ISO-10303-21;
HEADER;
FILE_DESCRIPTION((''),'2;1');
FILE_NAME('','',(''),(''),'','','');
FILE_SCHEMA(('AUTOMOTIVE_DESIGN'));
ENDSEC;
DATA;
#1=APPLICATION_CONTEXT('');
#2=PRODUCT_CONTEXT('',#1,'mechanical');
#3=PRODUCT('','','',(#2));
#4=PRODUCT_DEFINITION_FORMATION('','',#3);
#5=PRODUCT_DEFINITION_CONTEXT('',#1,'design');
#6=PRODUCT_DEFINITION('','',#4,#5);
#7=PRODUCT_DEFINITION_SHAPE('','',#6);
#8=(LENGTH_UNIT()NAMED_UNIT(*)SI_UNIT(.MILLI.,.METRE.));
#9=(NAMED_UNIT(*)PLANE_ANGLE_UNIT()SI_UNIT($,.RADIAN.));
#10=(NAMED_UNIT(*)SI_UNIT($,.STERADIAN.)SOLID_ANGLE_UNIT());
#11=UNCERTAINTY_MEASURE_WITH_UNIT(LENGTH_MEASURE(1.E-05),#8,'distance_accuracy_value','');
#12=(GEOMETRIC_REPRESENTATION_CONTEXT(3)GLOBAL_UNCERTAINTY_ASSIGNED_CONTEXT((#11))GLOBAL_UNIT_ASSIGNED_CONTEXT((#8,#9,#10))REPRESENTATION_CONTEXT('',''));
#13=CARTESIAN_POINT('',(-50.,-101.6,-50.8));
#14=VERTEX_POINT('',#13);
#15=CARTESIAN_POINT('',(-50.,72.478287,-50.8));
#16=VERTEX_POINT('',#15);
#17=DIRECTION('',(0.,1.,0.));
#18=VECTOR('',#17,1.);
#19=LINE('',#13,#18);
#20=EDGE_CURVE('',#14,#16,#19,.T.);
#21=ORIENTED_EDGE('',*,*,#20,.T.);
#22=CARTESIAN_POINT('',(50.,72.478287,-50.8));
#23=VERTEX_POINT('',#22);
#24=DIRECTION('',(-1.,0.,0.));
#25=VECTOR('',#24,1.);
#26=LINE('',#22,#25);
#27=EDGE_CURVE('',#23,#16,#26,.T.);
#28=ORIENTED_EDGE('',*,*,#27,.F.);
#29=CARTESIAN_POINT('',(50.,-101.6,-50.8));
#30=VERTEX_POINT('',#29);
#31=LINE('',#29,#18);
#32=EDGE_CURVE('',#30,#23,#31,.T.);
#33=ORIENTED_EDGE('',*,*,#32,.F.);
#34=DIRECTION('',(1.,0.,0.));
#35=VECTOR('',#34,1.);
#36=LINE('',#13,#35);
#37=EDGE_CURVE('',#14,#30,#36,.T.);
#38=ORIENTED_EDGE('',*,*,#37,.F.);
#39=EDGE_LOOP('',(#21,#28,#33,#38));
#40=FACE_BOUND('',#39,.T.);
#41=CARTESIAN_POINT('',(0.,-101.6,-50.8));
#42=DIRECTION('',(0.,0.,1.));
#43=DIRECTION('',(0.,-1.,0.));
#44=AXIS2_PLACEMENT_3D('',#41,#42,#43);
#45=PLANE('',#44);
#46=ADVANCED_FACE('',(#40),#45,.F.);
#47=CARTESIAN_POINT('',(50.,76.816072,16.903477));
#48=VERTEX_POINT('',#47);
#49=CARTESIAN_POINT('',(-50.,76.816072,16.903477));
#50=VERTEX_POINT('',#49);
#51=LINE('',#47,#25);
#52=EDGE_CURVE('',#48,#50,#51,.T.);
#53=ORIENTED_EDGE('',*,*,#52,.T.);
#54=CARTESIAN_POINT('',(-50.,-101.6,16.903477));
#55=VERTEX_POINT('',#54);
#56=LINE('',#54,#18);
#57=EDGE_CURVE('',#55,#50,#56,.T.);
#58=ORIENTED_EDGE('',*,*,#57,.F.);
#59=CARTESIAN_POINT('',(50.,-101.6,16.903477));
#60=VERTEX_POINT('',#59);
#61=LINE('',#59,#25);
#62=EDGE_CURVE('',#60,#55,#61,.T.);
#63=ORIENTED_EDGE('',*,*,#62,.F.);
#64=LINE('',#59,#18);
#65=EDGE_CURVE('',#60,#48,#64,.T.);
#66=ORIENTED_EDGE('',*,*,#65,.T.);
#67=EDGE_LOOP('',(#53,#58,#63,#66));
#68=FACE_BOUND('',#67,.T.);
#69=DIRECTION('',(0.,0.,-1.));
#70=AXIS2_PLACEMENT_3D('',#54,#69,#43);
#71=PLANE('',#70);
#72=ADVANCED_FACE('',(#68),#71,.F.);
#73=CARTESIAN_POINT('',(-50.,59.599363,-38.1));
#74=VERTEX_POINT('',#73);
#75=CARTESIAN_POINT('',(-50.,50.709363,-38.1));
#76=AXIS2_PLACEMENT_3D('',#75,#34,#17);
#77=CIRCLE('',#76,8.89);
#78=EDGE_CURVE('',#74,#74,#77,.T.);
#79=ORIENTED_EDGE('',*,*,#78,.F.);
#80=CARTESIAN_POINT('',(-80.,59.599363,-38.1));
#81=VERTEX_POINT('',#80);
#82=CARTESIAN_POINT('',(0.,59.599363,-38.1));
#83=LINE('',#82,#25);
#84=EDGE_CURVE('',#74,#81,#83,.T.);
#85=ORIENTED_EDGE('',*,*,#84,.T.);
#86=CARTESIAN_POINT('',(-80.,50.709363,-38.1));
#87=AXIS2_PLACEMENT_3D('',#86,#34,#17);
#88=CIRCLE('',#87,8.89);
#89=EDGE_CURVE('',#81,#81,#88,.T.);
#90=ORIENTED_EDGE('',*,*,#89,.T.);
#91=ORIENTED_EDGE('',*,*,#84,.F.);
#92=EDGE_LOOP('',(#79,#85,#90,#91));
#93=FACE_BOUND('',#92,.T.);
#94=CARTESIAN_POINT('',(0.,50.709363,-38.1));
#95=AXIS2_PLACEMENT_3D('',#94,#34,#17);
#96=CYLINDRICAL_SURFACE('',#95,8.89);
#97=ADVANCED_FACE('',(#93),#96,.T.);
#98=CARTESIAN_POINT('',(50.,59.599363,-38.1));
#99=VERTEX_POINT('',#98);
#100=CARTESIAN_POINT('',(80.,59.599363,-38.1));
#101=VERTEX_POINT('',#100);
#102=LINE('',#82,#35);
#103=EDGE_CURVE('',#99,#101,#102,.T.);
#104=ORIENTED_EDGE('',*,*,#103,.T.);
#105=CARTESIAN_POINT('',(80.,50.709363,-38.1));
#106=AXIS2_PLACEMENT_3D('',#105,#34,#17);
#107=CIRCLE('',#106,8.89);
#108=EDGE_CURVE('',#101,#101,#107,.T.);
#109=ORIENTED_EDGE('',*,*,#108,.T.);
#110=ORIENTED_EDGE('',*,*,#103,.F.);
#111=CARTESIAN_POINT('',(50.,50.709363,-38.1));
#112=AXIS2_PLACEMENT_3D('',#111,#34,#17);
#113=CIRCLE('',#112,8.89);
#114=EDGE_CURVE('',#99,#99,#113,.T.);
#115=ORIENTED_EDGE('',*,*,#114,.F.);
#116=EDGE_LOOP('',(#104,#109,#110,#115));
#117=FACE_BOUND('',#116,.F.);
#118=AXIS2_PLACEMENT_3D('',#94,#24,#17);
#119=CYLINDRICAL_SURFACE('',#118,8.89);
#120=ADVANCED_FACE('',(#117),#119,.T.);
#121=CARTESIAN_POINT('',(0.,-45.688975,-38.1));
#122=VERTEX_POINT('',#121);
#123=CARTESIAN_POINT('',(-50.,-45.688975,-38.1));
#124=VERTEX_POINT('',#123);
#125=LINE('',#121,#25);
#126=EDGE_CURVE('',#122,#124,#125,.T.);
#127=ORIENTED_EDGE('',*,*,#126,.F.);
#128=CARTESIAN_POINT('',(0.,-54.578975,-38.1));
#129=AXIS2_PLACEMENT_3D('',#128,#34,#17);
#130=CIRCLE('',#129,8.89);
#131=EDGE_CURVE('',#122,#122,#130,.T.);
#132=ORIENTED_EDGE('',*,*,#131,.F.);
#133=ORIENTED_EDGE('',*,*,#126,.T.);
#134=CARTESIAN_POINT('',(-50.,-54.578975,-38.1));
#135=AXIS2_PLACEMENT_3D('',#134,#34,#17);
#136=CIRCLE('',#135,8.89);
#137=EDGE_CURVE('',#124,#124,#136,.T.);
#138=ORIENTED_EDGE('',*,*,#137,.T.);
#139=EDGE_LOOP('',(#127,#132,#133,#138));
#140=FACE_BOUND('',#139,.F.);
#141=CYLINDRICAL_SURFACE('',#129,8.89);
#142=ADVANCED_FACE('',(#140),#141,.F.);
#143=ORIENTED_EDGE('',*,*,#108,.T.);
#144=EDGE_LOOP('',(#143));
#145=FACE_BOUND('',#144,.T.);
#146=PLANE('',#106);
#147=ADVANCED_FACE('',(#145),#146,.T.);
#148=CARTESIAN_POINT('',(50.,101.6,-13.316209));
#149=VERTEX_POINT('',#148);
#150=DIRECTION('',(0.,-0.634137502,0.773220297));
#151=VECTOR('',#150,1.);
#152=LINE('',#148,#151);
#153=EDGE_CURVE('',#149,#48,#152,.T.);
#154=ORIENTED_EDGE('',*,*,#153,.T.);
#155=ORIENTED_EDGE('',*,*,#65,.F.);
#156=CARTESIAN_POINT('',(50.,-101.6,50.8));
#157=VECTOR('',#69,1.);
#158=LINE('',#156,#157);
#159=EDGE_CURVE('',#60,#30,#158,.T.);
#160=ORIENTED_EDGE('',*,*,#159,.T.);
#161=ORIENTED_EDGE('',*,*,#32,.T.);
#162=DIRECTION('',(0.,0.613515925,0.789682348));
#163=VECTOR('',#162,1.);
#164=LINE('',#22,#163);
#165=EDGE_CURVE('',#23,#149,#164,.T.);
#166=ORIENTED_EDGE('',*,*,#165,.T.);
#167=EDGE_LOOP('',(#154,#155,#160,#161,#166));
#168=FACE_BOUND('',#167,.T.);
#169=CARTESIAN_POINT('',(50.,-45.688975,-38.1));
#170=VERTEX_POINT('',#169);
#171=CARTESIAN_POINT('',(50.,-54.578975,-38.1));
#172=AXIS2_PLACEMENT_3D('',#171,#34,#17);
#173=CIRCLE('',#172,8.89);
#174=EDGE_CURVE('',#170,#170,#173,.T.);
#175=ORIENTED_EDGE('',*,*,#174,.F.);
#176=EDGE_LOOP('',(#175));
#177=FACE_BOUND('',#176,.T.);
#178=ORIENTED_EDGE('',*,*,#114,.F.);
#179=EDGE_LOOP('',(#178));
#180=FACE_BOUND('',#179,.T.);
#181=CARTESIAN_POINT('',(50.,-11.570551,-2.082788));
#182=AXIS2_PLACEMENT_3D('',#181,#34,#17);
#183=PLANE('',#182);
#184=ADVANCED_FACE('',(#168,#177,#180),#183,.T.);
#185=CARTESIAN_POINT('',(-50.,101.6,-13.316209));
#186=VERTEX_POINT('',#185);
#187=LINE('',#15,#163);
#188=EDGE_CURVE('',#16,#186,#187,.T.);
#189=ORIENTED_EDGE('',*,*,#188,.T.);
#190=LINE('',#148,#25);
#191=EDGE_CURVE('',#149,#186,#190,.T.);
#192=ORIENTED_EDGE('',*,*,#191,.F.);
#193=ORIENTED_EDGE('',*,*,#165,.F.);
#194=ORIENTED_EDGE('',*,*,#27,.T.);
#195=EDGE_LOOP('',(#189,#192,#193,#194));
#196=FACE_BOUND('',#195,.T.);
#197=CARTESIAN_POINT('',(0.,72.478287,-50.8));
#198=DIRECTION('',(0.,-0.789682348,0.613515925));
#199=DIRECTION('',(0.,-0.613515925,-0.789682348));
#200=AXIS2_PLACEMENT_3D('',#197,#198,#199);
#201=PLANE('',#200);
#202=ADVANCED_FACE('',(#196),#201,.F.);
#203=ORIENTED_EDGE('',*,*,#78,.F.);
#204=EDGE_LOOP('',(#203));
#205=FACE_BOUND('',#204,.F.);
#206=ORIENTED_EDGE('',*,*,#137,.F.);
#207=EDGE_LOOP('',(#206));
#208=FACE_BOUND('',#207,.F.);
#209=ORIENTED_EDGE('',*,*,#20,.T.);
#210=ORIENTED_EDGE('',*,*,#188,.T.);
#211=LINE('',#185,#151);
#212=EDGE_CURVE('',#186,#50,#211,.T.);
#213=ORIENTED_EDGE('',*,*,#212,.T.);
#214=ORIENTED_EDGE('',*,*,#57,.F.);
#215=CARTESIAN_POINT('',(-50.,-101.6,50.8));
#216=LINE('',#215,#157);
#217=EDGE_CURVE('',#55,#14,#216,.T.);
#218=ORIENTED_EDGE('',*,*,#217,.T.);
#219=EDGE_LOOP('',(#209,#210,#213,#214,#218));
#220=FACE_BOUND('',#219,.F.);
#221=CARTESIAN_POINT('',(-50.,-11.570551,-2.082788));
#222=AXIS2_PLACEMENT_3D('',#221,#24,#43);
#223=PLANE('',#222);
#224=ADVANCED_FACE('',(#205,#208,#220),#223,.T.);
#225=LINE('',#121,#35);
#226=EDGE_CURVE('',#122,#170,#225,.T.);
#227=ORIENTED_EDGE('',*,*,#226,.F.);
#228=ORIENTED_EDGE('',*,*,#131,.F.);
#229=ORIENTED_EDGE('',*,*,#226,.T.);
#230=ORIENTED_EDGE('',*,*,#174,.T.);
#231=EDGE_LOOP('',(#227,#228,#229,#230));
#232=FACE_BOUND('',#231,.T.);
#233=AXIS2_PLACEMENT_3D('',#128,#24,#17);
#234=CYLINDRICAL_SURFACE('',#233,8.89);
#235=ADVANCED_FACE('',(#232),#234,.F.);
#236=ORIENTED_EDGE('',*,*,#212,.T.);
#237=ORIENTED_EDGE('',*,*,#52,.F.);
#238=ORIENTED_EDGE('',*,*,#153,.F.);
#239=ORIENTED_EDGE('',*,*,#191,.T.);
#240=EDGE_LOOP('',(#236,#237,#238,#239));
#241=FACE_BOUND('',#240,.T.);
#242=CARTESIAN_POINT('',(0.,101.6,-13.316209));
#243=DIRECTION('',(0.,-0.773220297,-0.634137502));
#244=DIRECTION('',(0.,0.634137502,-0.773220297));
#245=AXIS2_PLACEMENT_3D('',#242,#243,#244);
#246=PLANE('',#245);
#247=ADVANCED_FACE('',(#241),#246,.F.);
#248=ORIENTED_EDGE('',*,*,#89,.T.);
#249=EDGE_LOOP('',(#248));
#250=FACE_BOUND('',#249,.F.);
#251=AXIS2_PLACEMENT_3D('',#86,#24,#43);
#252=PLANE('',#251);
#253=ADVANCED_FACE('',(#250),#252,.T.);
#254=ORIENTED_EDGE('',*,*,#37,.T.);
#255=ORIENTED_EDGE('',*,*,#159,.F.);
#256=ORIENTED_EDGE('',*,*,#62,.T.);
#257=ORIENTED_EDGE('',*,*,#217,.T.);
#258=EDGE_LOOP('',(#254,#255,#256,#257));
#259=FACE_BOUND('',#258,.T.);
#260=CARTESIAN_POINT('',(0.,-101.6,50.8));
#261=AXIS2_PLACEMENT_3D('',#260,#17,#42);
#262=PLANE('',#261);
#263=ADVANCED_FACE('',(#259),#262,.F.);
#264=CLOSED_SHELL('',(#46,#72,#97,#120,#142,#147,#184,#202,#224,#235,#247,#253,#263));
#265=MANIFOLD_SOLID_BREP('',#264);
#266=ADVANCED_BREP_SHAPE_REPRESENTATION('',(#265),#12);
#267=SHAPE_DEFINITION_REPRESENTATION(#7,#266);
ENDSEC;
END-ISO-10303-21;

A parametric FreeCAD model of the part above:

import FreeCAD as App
import Part
import Sketcher

V = App.Vector
Q = App.Units.Quantity

doc = App.newDocument("Part")
body = doc.addObject("PartDesign::Body", "Body")

# Sketch on YZ plane
sketch1 = body.newObject("Sketcher::SketchObject", "Sketch")
sketch1.AttachmentSupport = (doc.getObject("YZ_Plane"), [""])
sketch1.MapMode = "FlatFace"
sketch1.addGeometry(Part.LineSegment(V(-102, -51, 0), V(72, -51, 0)), False)
sketch1.addGeometry(Part.LineSegment(V(72, -51, 0), V(102, -13, 0)), False)
sketch1.addGeometry(Part.LineSegment(V(102, -13, 0), V(49, 51, 0)), False)
sketch1.addGeometry(Part.LineSegment(V(49, 51, 0), V(-102, 51, 0)), False)
sketch1.addGeometry(Part.LineSegment(V(-102, 51, 0), V(-102, -51, 0)), False)
sketch1.addGeometry(Part.Circle(V(-55, -38, 0), V(0, 0, 1), 9), False)
sketch1.addGeometry(Part.Circle(V(51, -38, 0), V(0, 0, 1), 9), False)
sketch1.addConstraint(Sketcher.Constraint("Coincident", 0, 2, 1, 1))
sketch1.addConstraint(Sketcher.Constraint("Coincident", 1, 2, 2, 1))
sketch1.addConstraint(Sketcher.Constraint("Coincident", 2, 2, 3, 1))
sketch1.addConstraint(Sketcher.Constraint("Coincident", 3, 2, 4, 1))
sketch1.addConstraint(Sketcher.Constraint("Coincident", 4, 2, 0, 1))
sketch1.addConstraint(Sketcher.Constraint("Horizontal", 0))
sketch1.addConstraint(Sketcher.Constraint("Horizontal", 3))
sketch1.addConstraint(Sketcher.Constraint("Vertical", 4))
sketch1.addConstraint(Sketcher.Constraint("Equal", 5, 6))
sketch1.addConstraint(Sketcher.Constraint("Horizontal", 5, 3, 6, 3))
sketch1.addConstraint(Sketcher.Constraint("Diameter", 5, Q("17.78 mm")))
sketch1.addConstraint(Sketcher.Constraint("DistanceY", 4, 2, 4, 1, Q("101.6 mm")))
sketch1.addConstraint(Sketcher.Constraint("DistanceY", 5, 3, -1, 1, Q("38.1 mm")))
sketch1.addConstraint(Sketcher.Constraint("DistanceY", 0, 2, -1, 1, Q("50.8 mm")))
sketch1.addConstraint(Sketcher.Constraint("DistanceX", -1, 1, 1, 2, Q("101.6 mm")))
sketch1.addConstraint(Sketcher.Constraint("DistanceX", 3, 2, -1, 1, Q("101.6 mm")))
sketch1.addConstraint(Sketcher.Constraint("Distance", 2, Q("82.921011 mm")))
sketch1.addConstraint(Sketcher.Constraint("DistanceX", 0, 1, 0, 2, Q("174.078287 mm")))
sketch1.addConstraint(Sketcher.Constraint("DistanceX", 3, 2, 3, 1, Q("150.616677 mm")))
sketch1.addConstraint(Sketcher.Constraint("DistanceX", 5, 3, 6, 3, Q("105.288338 mm")))
sketch1.addConstraint(Sketcher.Constraint("DistanceX", 5, 3, 0, 2, Q("127.057262 mm")))
pad1 = body.newObject("PartDesign::Pad", "Pad")
pad1.Profile = sketch1
pad1.Length = 50

# Sketch on YZ plane
sketch2 = body.newObject("Sketcher::SketchObject", "Sketch001")
sketch2.AttachmentSupport = (doc.getObject("YZ_Plane"), [""])
sketch2.MapMode = "FlatFace"
sketch2.AttachmentOffset = App.Placement(V(0, 0, 50), App.Rotation())
sketch2.addGeometry(Part.LineSegment(V(-102, 51, 0), V(-102, 17, 0)), False)
sketch2.addGeometry(Part.LineSegment(V(-102, 17, 0), V(77, 17, 0)), False)
sketch2.addGeometry(Part.LineSegment(V(77, 17, 0), V(49, 51, 0)), False)
sketch2.addGeometry(Part.LineSegment(V(49, 51, 0), V(-102, 51, 0)), False)
sketch2.addConstraint(Sketcher.Constraint("Coincident", 0, 2, 1, 1))
sketch2.addConstraint(Sketcher.Constraint("Coincident", 1, 2, 2, 1))
sketch2.addConstraint(Sketcher.Constraint("Coincident", 2, 2, 3, 1))
sketch2.addConstraint(Sketcher.Constraint("Coincident", 3, 2, 0, 1))
sketch2.addConstraint(Sketcher.Constraint("Vertical", 0))
sketch2.addConstraint(Sketcher.Constraint("Horizontal", 1))
sketch2.addConstraint(Sketcher.Constraint("Horizontal", 3))
sketch2.addConstraint(Sketcher.Constraint("DistanceX", 0, 2, -1, 1, Q("101.6 mm")))
sketch2.addConstraint(Sketcher.Constraint("DistanceY", -1, 1, 2, 2, Q("50.8 mm")))
sketch2.addConstraint(Sketcher.Constraint("DistanceX", 1, 1, 1, 2, Q("178.416072 mm")))
sketch2.addConstraint(Sketcher.Constraint("Distance", 2, Q("43.838119 mm")))
sketch2.addConstraint(Sketcher.Constraint("DistanceX", 3, 2, 3, 1, Q("150.616677 mm")))
pocket1 = body.newObject("PartDesign::Pocket", "Pocket")
pocket1.Profile = sketch2
pocket1.Length = 50

# Sketch on YZ plane
sketch3 = body.newObject("Sketcher::SketchObject", "Sketch002")
sketch3.AttachmentSupport = (doc.getObject("YZ_Plane"), [""])
sketch3.MapMode = "FlatFace"
sketch3.addGeometry(Part.Circle(V(51, -38, 0), V(0, 0, 1), 9), False)
sketch3.addConstraint(Sketcher.Constraint("Diameter", 0, Q("17.78 mm")))
sketch3.addConstraint(Sketcher.Constraint("DistanceY", 0, 3, -1, 1, Q("38.1 mm")))
sketch3.addConstraint(Sketcher.Constraint("DistanceX", -1, 1, 0, 3, Q("50.709363 mm")))
pad2 = body.newObject("PartDesign::Pad", "Pad001")
pad2.Profile = sketch3
pad2.Length = 80
body2 = doc.addObject("PartDesign::Body", "Body001")
doc.recompute()

body2.BaseFeature = body
doc.recompute()

mirroring = doc.addObject("Part::Mirroring", "Mirroring")
mirroring.Source = body
mirroring.Base = V(0, 0, 0)
mirroring.Normal = V(1, 0, 0)
body3 = doc.addObject("PartDesign::Body", "Body002")
body3.BaseFeature = mirroring
boolean = body2.newObject("PartDesign::Boolean", "Boolean")
boolean.Type = "Fuse"
boolean.addObjects([body3])
doc.recompute()
mirroring.Visibility = False

doc.recompute()
